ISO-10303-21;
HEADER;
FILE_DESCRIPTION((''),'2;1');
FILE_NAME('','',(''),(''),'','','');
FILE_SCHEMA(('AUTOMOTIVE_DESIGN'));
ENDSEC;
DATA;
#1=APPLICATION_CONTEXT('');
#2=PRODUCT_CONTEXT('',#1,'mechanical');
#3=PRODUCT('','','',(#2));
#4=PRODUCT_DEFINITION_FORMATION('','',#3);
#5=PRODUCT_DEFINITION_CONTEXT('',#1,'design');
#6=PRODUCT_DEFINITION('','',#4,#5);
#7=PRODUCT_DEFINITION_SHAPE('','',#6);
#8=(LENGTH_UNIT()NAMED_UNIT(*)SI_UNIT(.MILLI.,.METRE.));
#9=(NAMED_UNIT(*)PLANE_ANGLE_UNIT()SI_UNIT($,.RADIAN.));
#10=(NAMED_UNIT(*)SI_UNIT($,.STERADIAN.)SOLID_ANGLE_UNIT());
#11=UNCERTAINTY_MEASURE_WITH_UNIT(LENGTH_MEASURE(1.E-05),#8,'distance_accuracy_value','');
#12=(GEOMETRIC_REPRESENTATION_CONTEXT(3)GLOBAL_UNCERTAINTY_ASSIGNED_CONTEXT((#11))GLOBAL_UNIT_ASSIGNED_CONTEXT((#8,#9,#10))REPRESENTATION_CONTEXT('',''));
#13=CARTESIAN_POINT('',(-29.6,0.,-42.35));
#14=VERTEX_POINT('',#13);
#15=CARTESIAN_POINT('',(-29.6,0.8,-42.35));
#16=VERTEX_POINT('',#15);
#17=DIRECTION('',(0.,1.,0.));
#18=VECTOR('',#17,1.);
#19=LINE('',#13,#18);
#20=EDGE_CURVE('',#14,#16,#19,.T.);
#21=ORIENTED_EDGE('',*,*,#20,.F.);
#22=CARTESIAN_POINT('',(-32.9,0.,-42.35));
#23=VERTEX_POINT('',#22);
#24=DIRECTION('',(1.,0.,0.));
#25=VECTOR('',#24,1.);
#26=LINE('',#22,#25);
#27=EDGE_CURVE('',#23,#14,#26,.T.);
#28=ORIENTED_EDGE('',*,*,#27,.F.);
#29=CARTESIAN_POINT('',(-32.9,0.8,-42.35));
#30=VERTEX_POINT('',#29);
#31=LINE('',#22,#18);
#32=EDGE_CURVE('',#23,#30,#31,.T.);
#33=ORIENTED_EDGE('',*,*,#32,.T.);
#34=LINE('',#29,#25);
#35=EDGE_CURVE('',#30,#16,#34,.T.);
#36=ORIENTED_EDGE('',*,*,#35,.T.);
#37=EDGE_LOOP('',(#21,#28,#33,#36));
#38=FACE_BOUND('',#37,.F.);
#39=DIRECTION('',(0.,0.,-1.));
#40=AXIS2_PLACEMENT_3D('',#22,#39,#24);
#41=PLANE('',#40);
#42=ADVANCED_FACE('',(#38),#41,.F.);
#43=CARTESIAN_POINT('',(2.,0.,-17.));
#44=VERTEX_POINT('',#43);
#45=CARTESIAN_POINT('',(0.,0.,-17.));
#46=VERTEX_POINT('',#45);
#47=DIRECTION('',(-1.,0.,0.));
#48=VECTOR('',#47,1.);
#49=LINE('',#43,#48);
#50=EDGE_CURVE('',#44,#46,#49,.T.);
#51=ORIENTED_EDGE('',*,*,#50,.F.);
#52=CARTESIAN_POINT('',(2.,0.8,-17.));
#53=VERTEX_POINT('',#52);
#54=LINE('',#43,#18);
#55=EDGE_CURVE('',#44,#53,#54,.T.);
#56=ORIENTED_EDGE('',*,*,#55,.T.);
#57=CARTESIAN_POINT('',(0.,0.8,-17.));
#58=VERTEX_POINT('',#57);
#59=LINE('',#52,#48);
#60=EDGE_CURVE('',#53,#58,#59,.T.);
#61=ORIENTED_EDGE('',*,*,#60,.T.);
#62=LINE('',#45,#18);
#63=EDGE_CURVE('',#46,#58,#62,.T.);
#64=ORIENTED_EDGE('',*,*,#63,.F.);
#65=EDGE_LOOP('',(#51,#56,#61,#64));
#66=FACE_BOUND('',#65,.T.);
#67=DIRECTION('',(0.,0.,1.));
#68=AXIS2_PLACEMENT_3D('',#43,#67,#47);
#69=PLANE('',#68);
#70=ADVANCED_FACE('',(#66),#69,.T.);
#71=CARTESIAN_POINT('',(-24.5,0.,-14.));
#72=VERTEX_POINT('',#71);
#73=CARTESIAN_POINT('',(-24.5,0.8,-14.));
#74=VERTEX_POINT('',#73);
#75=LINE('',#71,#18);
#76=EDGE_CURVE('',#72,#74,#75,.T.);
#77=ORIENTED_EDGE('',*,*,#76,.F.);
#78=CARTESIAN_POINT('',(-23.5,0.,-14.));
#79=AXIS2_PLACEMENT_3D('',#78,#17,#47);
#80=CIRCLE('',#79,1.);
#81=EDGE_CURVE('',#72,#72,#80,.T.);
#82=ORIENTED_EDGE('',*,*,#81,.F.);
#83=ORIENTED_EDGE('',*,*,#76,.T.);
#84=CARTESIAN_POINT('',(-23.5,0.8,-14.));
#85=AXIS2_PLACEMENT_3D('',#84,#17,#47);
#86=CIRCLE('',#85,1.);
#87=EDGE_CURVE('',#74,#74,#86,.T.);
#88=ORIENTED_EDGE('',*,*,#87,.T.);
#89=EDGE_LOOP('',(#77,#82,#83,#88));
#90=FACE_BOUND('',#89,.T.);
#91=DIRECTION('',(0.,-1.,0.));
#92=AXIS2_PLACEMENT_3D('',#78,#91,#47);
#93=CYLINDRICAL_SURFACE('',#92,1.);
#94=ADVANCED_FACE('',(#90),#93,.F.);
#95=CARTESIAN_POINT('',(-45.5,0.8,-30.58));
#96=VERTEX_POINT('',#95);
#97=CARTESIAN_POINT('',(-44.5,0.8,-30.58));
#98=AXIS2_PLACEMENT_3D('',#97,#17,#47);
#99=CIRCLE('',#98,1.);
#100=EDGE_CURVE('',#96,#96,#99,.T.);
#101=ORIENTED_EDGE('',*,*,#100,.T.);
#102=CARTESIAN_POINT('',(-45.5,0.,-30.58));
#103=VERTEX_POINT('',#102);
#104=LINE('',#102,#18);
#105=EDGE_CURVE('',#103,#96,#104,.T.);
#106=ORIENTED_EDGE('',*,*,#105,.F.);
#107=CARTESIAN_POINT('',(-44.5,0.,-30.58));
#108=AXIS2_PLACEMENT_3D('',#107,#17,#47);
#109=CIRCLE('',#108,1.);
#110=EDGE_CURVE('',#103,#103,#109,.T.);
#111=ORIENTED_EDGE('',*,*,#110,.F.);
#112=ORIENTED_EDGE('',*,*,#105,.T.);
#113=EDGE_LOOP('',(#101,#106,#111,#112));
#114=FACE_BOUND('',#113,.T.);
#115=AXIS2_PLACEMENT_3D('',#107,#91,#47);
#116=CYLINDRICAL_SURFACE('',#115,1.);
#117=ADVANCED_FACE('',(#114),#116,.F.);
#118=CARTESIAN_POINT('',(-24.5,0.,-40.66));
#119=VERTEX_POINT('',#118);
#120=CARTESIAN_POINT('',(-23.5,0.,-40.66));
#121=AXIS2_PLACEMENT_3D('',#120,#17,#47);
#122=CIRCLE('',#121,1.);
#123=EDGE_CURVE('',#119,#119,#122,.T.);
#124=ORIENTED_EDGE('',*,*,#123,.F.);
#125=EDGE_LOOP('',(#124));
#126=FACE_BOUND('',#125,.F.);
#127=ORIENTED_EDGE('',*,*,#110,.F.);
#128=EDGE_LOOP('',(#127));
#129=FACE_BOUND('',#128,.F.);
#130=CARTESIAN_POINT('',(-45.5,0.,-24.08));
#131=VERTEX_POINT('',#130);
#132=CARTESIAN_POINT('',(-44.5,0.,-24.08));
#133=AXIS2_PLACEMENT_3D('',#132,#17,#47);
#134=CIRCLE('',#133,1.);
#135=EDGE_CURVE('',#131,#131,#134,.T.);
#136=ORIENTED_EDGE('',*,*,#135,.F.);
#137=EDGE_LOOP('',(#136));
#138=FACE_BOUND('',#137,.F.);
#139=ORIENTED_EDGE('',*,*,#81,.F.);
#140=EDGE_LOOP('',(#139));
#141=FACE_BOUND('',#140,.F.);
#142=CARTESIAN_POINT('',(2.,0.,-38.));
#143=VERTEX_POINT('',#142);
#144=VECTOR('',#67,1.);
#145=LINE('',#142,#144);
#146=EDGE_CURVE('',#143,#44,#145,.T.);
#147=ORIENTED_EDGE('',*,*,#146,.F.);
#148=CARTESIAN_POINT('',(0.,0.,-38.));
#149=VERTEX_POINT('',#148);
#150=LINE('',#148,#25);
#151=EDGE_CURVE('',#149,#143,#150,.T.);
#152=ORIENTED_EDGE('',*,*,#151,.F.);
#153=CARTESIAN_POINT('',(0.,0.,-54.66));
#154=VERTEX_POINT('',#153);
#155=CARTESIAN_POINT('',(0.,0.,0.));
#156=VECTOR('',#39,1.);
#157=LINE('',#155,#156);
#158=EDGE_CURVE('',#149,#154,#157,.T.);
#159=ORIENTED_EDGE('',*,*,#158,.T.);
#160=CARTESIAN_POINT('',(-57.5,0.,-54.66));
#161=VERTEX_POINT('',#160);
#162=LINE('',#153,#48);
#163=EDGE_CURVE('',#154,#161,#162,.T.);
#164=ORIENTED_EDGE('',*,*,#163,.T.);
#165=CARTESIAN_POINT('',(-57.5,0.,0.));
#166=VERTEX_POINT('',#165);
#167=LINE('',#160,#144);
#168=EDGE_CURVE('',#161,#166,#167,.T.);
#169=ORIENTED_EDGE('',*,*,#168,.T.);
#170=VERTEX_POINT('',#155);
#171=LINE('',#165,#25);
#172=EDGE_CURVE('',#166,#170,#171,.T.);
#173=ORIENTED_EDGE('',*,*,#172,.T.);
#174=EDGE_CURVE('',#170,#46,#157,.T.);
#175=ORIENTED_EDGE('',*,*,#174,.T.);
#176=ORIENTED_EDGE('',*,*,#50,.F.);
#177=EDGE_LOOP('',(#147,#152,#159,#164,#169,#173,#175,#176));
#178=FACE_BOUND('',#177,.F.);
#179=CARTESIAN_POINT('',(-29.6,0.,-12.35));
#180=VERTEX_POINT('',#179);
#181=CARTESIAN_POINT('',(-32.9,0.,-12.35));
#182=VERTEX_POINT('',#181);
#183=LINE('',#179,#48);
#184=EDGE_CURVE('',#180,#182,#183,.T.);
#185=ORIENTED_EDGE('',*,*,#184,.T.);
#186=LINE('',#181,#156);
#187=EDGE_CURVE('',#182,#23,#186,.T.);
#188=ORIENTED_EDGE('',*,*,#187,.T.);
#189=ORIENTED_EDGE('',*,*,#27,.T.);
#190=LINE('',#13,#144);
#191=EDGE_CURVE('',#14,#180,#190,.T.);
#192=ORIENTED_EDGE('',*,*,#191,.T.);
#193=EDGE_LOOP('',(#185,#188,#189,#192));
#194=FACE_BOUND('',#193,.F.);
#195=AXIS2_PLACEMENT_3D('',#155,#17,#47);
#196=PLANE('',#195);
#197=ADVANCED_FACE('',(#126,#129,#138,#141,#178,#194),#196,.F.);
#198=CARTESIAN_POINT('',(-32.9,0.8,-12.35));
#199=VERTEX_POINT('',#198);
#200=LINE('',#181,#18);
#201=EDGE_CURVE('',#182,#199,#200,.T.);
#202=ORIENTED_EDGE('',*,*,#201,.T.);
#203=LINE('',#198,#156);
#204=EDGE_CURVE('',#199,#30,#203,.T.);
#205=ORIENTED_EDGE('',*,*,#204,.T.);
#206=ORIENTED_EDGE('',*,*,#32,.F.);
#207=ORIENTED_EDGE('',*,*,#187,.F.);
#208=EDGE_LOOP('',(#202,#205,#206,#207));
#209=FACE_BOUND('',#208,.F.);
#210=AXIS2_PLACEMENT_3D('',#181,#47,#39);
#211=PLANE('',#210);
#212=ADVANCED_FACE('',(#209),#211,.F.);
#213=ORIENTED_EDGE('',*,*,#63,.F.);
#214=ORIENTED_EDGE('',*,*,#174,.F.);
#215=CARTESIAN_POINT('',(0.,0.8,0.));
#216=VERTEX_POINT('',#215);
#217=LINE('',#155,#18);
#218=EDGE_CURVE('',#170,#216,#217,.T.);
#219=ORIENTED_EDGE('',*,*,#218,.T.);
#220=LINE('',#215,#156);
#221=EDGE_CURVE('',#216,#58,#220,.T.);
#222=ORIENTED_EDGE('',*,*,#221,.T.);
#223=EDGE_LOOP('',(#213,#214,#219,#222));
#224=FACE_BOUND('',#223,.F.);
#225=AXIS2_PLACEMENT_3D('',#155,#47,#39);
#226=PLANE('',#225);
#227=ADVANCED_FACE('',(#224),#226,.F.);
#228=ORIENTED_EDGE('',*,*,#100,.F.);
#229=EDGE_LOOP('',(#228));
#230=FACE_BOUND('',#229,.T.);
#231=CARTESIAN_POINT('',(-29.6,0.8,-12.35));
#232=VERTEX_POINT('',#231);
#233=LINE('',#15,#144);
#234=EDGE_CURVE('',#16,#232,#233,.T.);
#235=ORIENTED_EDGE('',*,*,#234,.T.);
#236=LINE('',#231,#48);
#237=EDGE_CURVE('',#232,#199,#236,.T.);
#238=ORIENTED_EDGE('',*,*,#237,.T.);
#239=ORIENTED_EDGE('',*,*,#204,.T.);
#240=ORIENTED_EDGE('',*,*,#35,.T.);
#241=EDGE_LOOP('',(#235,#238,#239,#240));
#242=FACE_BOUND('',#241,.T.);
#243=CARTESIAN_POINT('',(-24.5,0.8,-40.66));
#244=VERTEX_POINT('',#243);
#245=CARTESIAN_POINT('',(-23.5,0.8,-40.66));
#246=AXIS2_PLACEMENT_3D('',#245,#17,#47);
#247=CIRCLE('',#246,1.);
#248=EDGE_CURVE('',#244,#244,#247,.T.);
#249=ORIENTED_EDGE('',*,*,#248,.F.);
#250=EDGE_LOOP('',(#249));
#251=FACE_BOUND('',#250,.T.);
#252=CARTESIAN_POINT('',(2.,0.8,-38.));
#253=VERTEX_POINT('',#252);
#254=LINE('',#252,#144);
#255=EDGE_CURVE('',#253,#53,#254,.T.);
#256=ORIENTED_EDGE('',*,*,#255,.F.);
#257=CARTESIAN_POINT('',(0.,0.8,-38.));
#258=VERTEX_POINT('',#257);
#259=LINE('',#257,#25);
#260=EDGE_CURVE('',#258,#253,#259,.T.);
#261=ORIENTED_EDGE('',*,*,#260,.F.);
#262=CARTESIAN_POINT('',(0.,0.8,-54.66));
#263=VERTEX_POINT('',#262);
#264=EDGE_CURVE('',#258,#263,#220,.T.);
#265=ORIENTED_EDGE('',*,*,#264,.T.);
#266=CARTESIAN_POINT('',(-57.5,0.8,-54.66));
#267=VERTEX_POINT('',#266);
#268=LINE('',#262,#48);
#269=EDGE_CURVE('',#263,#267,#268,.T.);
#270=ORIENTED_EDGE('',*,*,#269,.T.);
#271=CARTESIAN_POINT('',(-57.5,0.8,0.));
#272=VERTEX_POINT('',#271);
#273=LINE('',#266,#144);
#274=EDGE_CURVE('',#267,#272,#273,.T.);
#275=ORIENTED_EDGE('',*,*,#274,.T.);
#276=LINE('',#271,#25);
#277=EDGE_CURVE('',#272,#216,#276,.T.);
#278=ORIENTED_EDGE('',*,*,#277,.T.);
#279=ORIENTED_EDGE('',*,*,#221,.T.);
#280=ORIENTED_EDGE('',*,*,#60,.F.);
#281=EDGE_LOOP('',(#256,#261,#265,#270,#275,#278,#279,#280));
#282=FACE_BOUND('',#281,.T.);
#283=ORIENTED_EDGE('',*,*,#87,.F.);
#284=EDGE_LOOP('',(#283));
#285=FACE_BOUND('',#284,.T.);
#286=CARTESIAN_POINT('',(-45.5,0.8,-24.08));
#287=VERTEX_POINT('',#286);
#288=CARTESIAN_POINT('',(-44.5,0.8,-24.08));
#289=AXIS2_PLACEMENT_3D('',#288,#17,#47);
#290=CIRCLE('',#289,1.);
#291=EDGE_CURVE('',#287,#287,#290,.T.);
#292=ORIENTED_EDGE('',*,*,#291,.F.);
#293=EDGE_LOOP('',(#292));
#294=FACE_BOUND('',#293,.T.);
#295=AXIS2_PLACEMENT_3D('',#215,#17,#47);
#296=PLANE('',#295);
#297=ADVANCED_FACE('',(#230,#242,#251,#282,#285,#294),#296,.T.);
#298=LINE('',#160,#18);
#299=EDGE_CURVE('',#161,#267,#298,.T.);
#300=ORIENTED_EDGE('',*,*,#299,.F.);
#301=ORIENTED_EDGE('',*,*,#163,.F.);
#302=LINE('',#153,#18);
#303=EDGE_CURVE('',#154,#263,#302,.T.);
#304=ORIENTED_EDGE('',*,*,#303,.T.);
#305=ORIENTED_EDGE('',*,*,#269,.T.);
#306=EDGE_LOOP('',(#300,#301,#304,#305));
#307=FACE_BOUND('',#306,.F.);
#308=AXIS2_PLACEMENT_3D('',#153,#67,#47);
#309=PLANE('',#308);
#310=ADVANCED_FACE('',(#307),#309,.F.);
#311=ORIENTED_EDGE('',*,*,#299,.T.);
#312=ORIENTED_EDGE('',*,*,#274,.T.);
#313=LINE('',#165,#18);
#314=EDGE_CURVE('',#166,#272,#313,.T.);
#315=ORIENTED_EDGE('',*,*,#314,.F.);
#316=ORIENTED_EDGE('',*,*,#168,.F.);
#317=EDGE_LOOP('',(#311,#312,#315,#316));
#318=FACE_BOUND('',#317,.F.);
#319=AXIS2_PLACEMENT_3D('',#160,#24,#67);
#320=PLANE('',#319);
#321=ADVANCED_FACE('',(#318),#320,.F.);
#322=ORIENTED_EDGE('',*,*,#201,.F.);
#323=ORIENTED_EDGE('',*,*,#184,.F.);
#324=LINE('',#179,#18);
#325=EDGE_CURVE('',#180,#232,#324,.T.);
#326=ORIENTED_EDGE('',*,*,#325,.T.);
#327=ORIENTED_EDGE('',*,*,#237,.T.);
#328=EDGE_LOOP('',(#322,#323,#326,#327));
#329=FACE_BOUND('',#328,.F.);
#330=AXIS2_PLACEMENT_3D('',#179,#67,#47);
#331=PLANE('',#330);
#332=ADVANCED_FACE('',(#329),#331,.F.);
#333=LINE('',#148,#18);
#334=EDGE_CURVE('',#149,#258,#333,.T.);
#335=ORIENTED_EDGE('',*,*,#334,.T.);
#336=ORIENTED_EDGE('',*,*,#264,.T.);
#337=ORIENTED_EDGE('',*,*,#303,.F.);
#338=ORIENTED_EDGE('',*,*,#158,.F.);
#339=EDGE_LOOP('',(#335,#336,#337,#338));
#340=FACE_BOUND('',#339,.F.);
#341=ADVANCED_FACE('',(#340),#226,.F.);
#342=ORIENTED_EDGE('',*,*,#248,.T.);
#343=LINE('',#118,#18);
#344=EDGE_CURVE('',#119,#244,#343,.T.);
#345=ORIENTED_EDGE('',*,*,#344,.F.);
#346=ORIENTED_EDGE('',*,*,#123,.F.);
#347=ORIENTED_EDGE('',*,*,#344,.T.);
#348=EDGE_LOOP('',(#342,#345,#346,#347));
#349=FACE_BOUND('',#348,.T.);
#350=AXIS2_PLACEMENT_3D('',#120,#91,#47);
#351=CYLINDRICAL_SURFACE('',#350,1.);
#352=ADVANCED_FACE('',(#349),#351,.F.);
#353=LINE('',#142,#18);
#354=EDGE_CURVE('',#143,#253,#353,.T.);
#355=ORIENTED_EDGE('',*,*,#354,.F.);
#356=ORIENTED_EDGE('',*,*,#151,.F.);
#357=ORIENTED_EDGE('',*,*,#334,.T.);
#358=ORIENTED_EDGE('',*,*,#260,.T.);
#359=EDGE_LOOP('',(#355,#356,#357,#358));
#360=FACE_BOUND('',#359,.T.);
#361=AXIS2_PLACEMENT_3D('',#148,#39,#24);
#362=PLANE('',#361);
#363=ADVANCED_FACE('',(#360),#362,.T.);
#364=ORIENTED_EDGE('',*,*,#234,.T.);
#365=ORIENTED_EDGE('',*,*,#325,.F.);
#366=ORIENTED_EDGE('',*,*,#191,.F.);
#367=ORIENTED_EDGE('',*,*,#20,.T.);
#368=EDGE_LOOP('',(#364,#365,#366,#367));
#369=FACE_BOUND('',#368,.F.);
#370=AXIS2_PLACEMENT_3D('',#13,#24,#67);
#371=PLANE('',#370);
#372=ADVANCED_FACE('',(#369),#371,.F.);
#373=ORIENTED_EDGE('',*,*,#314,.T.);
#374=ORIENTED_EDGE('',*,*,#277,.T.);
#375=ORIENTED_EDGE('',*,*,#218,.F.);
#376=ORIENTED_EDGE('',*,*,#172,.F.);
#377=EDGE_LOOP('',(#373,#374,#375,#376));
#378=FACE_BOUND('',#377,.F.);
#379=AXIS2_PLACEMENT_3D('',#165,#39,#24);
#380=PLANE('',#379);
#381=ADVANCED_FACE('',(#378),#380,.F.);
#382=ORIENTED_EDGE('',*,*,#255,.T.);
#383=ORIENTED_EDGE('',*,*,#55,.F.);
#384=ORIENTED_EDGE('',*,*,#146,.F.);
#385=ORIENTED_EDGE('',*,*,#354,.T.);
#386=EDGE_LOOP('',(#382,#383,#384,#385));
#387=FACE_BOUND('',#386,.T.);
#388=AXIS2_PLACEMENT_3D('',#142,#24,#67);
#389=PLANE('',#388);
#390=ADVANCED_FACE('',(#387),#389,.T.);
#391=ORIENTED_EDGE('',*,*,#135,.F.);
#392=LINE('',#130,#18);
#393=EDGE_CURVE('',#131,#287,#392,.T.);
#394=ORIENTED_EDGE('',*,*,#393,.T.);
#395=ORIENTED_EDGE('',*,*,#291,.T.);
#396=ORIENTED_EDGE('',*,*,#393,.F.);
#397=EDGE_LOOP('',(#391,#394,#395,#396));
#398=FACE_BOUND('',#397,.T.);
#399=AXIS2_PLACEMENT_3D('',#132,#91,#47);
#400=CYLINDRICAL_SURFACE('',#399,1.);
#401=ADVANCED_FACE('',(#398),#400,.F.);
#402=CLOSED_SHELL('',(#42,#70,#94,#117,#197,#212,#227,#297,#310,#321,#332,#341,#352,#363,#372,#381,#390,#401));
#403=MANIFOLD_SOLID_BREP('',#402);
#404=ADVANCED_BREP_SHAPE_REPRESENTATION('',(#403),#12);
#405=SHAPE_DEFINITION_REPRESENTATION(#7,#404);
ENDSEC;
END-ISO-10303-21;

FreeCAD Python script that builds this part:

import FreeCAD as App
import Part
import Sketcher

V = App.Vector

doc = App.newDocument("Part")
body = doc.addObject("PartDesign::Body", "Body")

sketch1 = body.newObject("Sketcher::SketchObject", "Sketch")
sketch1.AttachmentSupport = (doc.getObject("XZ_Plane"), [""])
sketch1.MapMode = "FlatFace"
sketch1.addGeometry(Part.LineSegment(V(-57.5, 0, 0), V(0, 0, 0)), False)
sketch1.addGeometry(Part.LineSegment(V(0, 0, 0), V(0, -54.7, 0)), False)
sketch1.addGeometry(Part.LineSegment(V(0, -54.7, 0), V(-57.5, -54.7, 0)), False)
sketch1.addGeometry(Part.LineSegment(V(-57.5, -54.7, 0), V(-57.5, 0, 0)), False)
sketch1.addGeometry(Part.Circle(V(-23.5, -40.7, 0), V(0, 0, 1), 1), False)
sketch1.addGeometry(Part.LineSegment(V(-29.6, -42.4, 0), V(-29.6, -12.3, 0)), False)
sketch1.addGeometry(Part.LineSegment(V(-29.6, -12.3, 0), V(-32.9, -12.3, 0)), False)
sketch1.addGeometry(Part.LineSegment(V(-32.9, -12.3, 0), V(-32.9, -42.4, 0)), False)
sketch1.addGeometry(Part.LineSegment(V(-32.9, -42.4, 0), V(-29.6, -42.4, 0)), False)
sketch1.addGeometry(Part.Circle(V(-44.5, -30.6, 0), V(0, 0, 1), 1), False)
sketch1.addGeometry(Part.Circle(V(-23.5, -14, 0), V(0, 0, 1), 1), False)
sketch1.addGeometry(Part.Circle(V(-44.5, -24.1, 0), V(0, 0, 1), 1), False)
sketch1.addConstraint(Sketcher.Constraint("Coincident", 0, 2, 1, 1))
sketch1.addConstraint(Sketcher.Constraint("Coincident", 1, 2, 2, 1))
sketch1.addConstraint(Sketcher.Constraint("Coincident", 2, 2, 3, 1))
sketch1.addConstraint(Sketcher.Constraint("Coincident", 3, 2, 0, 1))
sketch1.addConstraint(Sketcher.Constraint("Coincident", 5, 2, 6, 1))
sketch1.addConstraint(Sketcher.Constraint("Coincident", 6, 2, 7, 1))
sketch1.addConstraint(Sketcher.Constraint("Coincident", 7, 2, 8, 1))
sketch1.addConstraint(Sketcher.Constraint("Coincident", 8, 2, 5, 1))
sketch1.addConstraint(Sketcher.Constraint("Horizontal", 0))
sketch1.addConstraint(Sketcher.Constraint("Vertical", 1))
sketch1.addConstraint(Sketcher.Constraint("Horizontal", 2))
sketch1.addConstraint(Sketcher.Constraint("Vertical", 3))
sketch1.addConstraint(Sketcher.Constraint("Vertical", 5))
sketch1.addConstraint(Sketcher.Constraint("Horizontal", 6))
sketch1.addConstraint(Sketcher.Constraint("Vertical", 7))
sketch1.addConstraint(Sketcher.Constraint("Horizontal", 8))
sketch1.addConstraint(Sketcher.Constraint("Coincident", 0, 2, -1, 1))
sketch1.addConstraint(Sketcher.Constraint("Equal", 4, 9))
sketch1.addConstraint(Sketcher.Constraint("Equal", 9, 10))
sketch1.addConstraint(Sketcher.Constraint("Equal", 10, 11))
sketch1.addConstraint(Sketcher.Constraint("Vertical", 4, 3, 10, 3))
sketch1.addConstraint(Sketcher.Constraint("Vertical", 9, 3, 11, 3))
sketch1.addConstraint(Sketcher.Constraint("Diameter", 4, 2.0))
sketch1.addConstraint(Sketcher.Constraint("DistanceY", 5, 1, 5, 2, 30.0))
sketch1.addConstraint(Sketcher.Constraint("DistanceX", 0, 1, 0, 2, 57.5))
sketch1.addConstraint(Sketcher.Constraint("DistanceX", 6, 2, 6, 1, 3.3))
sketch1.addConstraint(Sketcher.Constraint("DistanceY", 1, 2, 1, 1, 54.66))
sketch1.addConstraint(Sketcher.Constraint("DistanceX", 4, 3, -1, 1, 23.5))
sketch1.addConstraint(Sketcher.Constraint("DistanceX", 9, 3, -1, 1, 44.5))
sketch1.addConstraint(Sketcher.Constraint("DistanceX", 5, 2, -1, 1, 29.6))
sketch1.addConstraint(Sketcher.Constraint("DistanceY", 5, 2, -1, 1, 12.35))
sketch1.addConstraint(Sketcher.Constraint("DistanceY", 10, 3, -1, 1, 14.0))
sketch1.addConstraint(Sketcher.Constraint("DistanceY", 1, 2, 4, 3, 14.0))
sketch1.addConstraint(Sketcher.Constraint("DistanceY", 9, 3, 11, 3, 6.5))
sketch1.addConstraint(Sketcher.Constraint("DistanceY", 9, 3, -1, 1, 30.58))
pad1 = body.newObject("PartDesign::Pad", "Pad")
pad1.Profile = sketch1
pad1.Length = 0.8
pad1.Reversed = True

sketch2 = body.newObject("Sketcher::SketchObject", "Sketch001")
sketch2.AttachmentSupport = (doc.getObject("XZ_Plane"), [""])
sketch2.MapMode = "FlatFace"
sketch2.addGeometry(Part.LineSegment(V(0, -17, 0), V(0, -38, 0)), False)
sketch2.addGeometry(Part.LineSegment(V(0, -38, 0), V(2, -38, 0)), False)
sketch2.addGeometry(Part.LineSegment(V(2, -38, 0), V(2, -17, 0)), False)
sketch2.addGeometry(Part.LineSegment(V(2, -17, 0), V(0, -17, 0)), False)
sketch2.addConstraint(Sketcher.Constraint("Coincident", 0, 2, 1, 1))
sketch2.addConstraint(Sketcher.Constraint("Coincident", 1, 2, 2, 1))
sketch2.addConstraint(Sketcher.Constraint("Coincident", 2, 2, 3, 1))
sketch2.addConstraint(Sketcher.Constraint("Coincident", 3, 2, 0, 1))
sketch2.addConstraint(Sketcher.Constraint("Vertical", 0))
sketch2.addConstraint(Sketcher.Constraint("Horizontal", 1))
sketch2.addConstraint(Sketcher.Constraint("Vertical", 2))
sketch2.addConstraint(Sketcher.Constraint("Horizontal", 3))
sketch2.addConstraint(Sketcher.Constraint("PointOnObject", 0, 2, -2))
sketch2.addConstraint(Sketcher.Constraint("DistanceX", 1, 1, 1, 2, 2.0))
sketch2.addConstraint(Sketcher.Constraint("DistanceY", 0, 2, -1, 1, 38.0))
sketch2.addConstraint(Sketcher.Constraint("DistanceY", 2, 2, -1, 1, 17.0))
pad2 = body.newObject("PartDesign::Pad", "Pad001")
pad2.Profile = sketch2
pad2.Length = 0.8
pad2.Reversed = True

doc.recompute()
